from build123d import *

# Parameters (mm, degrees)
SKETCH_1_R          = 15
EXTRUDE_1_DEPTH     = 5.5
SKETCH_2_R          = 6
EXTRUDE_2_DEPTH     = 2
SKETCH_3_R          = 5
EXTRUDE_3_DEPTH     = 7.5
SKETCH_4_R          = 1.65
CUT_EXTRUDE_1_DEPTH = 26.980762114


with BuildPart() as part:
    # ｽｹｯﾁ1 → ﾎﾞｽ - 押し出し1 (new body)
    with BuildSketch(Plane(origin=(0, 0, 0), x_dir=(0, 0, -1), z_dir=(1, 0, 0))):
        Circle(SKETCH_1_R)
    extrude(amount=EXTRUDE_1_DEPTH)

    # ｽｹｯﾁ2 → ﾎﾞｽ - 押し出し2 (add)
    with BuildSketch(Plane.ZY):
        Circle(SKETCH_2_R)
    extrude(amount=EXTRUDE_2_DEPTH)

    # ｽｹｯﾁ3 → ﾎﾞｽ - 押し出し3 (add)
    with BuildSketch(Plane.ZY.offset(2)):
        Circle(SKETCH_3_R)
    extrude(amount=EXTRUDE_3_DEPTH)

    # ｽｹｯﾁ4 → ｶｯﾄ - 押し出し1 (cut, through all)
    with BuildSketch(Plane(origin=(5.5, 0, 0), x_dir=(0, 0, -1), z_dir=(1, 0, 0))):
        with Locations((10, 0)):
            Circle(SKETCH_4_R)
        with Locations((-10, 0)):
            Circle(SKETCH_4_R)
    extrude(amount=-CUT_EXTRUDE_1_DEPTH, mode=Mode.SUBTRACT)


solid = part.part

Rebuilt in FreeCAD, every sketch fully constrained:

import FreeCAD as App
import Part
import Sketcher
from FreeCAD import Vector
Q = App.Units.Quantity

doc = App.newDocument("Part")
body = doc.addObject("PartDesign::Body", "Body")

# Sketch on YZ plane
sketch1 = doc.addObject("Sketcher::SketchObject", "Sketch")
body.addObject(sketch1)
sketch1.AttachmentSupport = (doc.YZ_Plane, [""])
sketch1.MapMode = "FlatFace"
sketch1.addGeometry(Part.Circle(Vector(0, 0, 0), Vector(0, 0, 1), 15), False)
sketch1.addConstraint([
    Sketcher.Constraint("Coincident", 0, 3, -1, 1),
    Sketcher.Constraint("Diameter", 0, Q("30 mm")),
])
pad1 = doc.addObject("PartDesign::Pad", "Pad")
body.addObject(pad1)
pad1.Profile = sketch1
pad1.Length = 5.5

# Sketch on YZ plane
sketch2 = doc.addObject("Sketcher::SketchObject", "Sketch001")
body.addObject(sketch2)
sketch2.AttachmentSupport = (doc.YZ_Plane, [""])
sketch2.MapMode = "FlatFace"
sketch2.addGeometry(Part.Circle(Vector(0, 0, 0), Vector(0, 0, 1), 6), False)
sketch2.addConstraint([
    Sketcher.Constraint("Coincident", 0, 3, -1, 1),
    Sketcher.Constraint("Diameter", 0, Q("12 mm")),
])
pad2 = doc.addObject("PartDesign::Pad", "Pad001")
body.addObject(pad2)
pad2.Profile = sketch2
pad2.Length = 2
pad2.Reversed = True

# Sketch on YZ plane
sketch3 = doc.addObject("Sketcher::SketchObject", "Sketch002")
body.addObject(sketch3)
sketch3.AttachmentSupport = (doc.YZ_Plane, [""])
sketch3.MapMode = "FlatFace"
sketch3.AttachmentOffset = App.Placement(Vector(0, 0, -2), App.Rotation())
sketch3.addGeometry(Part.Circle(Vector(0, 0, 0), Vector(0, 0, 1), 5), False)
sketch3.addConstraint([
    Sketcher.Constraint("Coincident", 0, 3, -1, 1),
    Sketcher.Constraint("Diameter", 0, Q("10 mm")),
])
pad3 = doc.addObject("PartDesign::Pad", "Pad002")
body.addObject(pad3)
pad3.Profile = sketch3
pad3.Length = 7.5
pad3.Reversed = True

# Sketch on YZ plane
sketch4 = doc.addObject("Sketcher::SketchObject", "Sketch003")
body.addObject(sketch4)
sketch4.AttachmentSupport = (doc.YZ_Plane, [""])
sketch4.MapMode = "FlatFace"
sketch4.AttachmentOffset = App.Placement(Vector(0, 0, 5.5), App.Rotation())
sketch4.addGeometry([
    Part.Circle(Vector(0, -10, 0), Vector(0, 0, 1), 1.65),
    Part.Circle(Vector(0, 10, 0), Vector(0, 0, 1), 1.65),
], False)
sketch4.addConstraint([
    Sketcher.Constraint("Equal", 0, 1),
    Sketcher.Constraint("Symmetric", 0, 3, 1, 3, -1, 1),
    Sketcher.Constraint("PointOnObject", 0, 3, -2),
    Sketcher.Constraint("Diameter", 0, Q("3.3 mm")),
    Sketcher.Constraint("DistanceY", 0, 3, -1, 1, Q("10 mm")),
])
pocket1 = doc.addObject("PartDesign::Pocket", "Pocket")
body.addObject(pocket1)
pocket1.Profile = sketch4
pocket1.Type = "ThroughAll"

doc.recompute()
